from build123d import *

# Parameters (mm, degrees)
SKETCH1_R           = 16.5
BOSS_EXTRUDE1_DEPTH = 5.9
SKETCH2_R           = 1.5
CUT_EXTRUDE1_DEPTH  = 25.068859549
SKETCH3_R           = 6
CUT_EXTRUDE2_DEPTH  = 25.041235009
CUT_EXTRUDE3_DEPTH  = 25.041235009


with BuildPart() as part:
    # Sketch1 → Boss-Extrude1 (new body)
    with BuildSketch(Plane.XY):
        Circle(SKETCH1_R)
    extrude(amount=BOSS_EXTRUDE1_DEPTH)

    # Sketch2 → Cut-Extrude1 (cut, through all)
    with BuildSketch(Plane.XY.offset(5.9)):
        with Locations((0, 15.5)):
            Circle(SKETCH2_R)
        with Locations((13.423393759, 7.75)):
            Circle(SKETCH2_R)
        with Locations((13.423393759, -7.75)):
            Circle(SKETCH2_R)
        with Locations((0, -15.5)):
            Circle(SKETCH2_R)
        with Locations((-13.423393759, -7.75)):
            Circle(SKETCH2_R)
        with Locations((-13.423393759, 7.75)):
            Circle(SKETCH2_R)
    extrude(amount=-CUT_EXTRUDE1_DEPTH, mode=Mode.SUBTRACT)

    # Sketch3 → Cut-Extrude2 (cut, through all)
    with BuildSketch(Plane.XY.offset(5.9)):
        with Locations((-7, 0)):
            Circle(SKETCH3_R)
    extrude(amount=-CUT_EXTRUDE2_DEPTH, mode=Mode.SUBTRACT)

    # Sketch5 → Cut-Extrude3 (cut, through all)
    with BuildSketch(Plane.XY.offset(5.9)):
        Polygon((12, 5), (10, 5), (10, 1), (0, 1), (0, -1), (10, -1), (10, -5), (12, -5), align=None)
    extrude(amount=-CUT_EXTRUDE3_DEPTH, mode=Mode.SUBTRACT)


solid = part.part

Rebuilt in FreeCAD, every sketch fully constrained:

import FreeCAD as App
import Part
import Sketcher

V = App.Vector
Q = App.Units.Quantity


def add_polygon(sketch, points):
    """Adds a closed chain of lines whose ends are joined by coincident constraints."""
    first, n = sketch.GeometryCount, len(points)
    for a, b in zip(points, points[1:] + points[:1]):
        sketch.addGeometry(Part.LineSegment(App.Vector(*a, 0), App.Vector(*b, 0)), False)
    for i in range(n):
        sketch.addConstraint(Sketcher.Constraint("Coincident", first + i, 2, first + (i + 1) % n, 1))

doc = App.newDocument("Part")
body = doc.addObject("PartDesign::Body", "Body")

sketch1 = body.newObject("Sketcher::SketchObject", "Sketch")
sketch1.AttachmentSupport = (doc.getObject("XY_Plane"), [""])
sketch1.MapMode = "FlatFace"
sketch1.addGeometry(Part.Circle(V(0, 0, 0), V(0, 0, 1), 16), False)
sketch1.addConstraint(Sketcher.Constraint("Coincident", 0, 3, -1, 1))
sketch1.addConstraint(Sketcher.Constraint("Diameter", 0, Q("33 mm")))
pad1 = body.newObject("PartDesign::Pad", "Pad")
pad1.Profile = sketch1
pad1.Length = 5.9

sketch2 = body.newObject("Sketcher::SketchObject", "Sketch001")
sketch2.AttachmentSupport = (doc.getObject("XY_Plane"), [""])
sketch2.MapMode = "FlatFace"
sketch2.AttachmentOffset = App.Placement(V(0, 0, 5.9), App.Rotation())
sketch2.addGeometry(Part.Circle(V(0, 15.5, 0), V(0, 0, 1), 1.5), False)
sketch2.addGeometry(Part.Circle(V(13.4, 7.8, 0), V(0, 0, 1), 1.5), False)
sketch2.addGeometry(Part.Circle(V(13.4, -7.8, 0), V(0, 0, 1), 1.5), False)
sketch2.addGeometry(Part.Circle(V(0, -15.5, 0), V(0, 0, 1), 1.5), False)
sketch2.addGeometry(Part.Circle(V(-13.4, -7.8, 0), V(0, 0, 1), 1.5), False)
sketch2.addGeometry(Part.Circle(V(-13.4, 7.8, 0), V(0, 0, 1), 1.5), False)
sketch2.addConstraint(Sketcher.Constraint("Equal", 0, 1))
sketch2.addConstraint(Sketcher.Constraint("Equal", 1, 2))
sketch2.addConstraint(Sketcher.Constraint("Equal", 2, 3))
sketch2.addConstraint(Sketcher.Constraint("Equal", 3, 4))
sketch2.addConstraint(Sketcher.Constraint("Equal", 4, 5))
sketch2.addConstraint(Sketcher.Constraint("Symmetric", 0, 3, 3, 3, -1, 1))
sketch2.addConstraint(Sketcher.Constraint("Symmetric", 1, 3, 4, 3, -1, 1))
sketch2.addConstraint(Sketcher.Constraint("Symmetric", 2, 3, 5, 3, -1, 1))
sketch2.addConstraint(Sketcher.Constraint("Symmetric", 2, 3, 4, 3, -2))
sketch2.addConstraint(Sketcher.Constraint("PointOnObject", 0, 3, -2))
sketch2.addConstraint(Sketcher.Constraint("Diameter", 0, Q("3 mm")))
sketch2.addConstraint(Sketcher.Constraint("DistanceY", 3, 3, 0, 3, Q("31 mm")))
sketch2.addConstraint(Sketcher.Constraint("DistanceY", 2, 3, 1, 3, Q("15.5 mm")))
sketch2.addConstraint(Sketcher.Constraint("DistanceX", -1, 1, 1, 3, Q("13.423394 mm")))
pocket1 = body.newObject("PartDesign::Pocket", "Pocket")
pocket1.Profile = sketch2
pocket1.Type = "ThroughAll"

sketch3 = body.newObject("Sketcher::SketchObject", "Sketch002")
sketch3.AttachmentSupport = (doc.getObject("XY_Plane"), [""])
sketch3.MapMode = "FlatFace"
sketch3.AttachmentOffset = App.Placement(V(0, 0, 5.9), App.Rotation())
sketch3.addGeometry(Part.Circle(V(-7, 0, 0), V(0, 0, 1), 6), False)
sketch3.addConstraint(Sketcher.Constraint("PointOnObject", 0, 3, -1))
sketch3.addConstraint(Sketcher.Constraint("Diameter", 0, Q("12 mm")))
sketch3.addConstraint(Sketcher.Constraint("DistanceX", 0, 3, -1, 1, Q("7 mm")))
pocket2 = body.newObject("PartDesign::Pocket", "Pocket001")
pocket2.Profile = sketch3
pocket2.Type = "ThroughAll"

sketch4 = body.newObject("Sketcher::SketchObject", "Sketch003")
sketch4.AttachmentSupport = (doc.getObject("XY_Plane"), [""])
sketch4.MapMode = "FlatFace"
sketch4.AttachmentOffset = App.Placement(V(0, 0, 5.9), App.Rotation())
add_polygon(sketch4, [(12, 5), (10, 5), (10, 1), (0, 1), (0, -1), (10, -1), (10, -5), (12, -5)])
sketch4.addConstraint(Sketcher.Constraint("Horizontal", 0))
sketch4.addConstraint(Sketcher.Constraint("Vertical", 1))
sketch4.addConstraint(Sketcher.Constraint("Horizontal", 2))
sketch4.addConstraint(Sketcher.Constraint("Vertical", 3))
sketch4.addConstraint(Sketcher.Constraint("Horizontal", 4))
sketch4.addConstraint(Sketcher.Constraint("Vertical", 5))
sketch4.addConstraint(Sketcher.Constraint("Horizontal", 6))
sketch4.addConstraint(Sketcher.Constraint("Vertical", 7))
sketch4.addConstraint(Sketcher.Constraint("Symmetric", 2, 2, 3, 2, -1, 1))
sketch4.addConstraint(Sketcher.Constraint("Symmetric", 0, 2, 5, 2, -1))
sketch4.addConstraint(Sketcher.Constraint("Equal", 6, 3))
sketch4.addConstraint(Sketcher.Constraint("Equal", 4, 7))
sketch4.addConstraint(Sketcher.Constraint("DistanceX", 0, 2, 0, 1, Q("2 mm")))
sketch4.addConstraint(Sketcher.Constraint("DistanceX", 2, 2, 2, 1, Q("10 mm")))
pocket3 = body.newObject("PartDesign::Pocket", "Pocket002")
pocket3.Profile = sketch4
pocket3.Type = "ThroughAll"

doc.recompute()
